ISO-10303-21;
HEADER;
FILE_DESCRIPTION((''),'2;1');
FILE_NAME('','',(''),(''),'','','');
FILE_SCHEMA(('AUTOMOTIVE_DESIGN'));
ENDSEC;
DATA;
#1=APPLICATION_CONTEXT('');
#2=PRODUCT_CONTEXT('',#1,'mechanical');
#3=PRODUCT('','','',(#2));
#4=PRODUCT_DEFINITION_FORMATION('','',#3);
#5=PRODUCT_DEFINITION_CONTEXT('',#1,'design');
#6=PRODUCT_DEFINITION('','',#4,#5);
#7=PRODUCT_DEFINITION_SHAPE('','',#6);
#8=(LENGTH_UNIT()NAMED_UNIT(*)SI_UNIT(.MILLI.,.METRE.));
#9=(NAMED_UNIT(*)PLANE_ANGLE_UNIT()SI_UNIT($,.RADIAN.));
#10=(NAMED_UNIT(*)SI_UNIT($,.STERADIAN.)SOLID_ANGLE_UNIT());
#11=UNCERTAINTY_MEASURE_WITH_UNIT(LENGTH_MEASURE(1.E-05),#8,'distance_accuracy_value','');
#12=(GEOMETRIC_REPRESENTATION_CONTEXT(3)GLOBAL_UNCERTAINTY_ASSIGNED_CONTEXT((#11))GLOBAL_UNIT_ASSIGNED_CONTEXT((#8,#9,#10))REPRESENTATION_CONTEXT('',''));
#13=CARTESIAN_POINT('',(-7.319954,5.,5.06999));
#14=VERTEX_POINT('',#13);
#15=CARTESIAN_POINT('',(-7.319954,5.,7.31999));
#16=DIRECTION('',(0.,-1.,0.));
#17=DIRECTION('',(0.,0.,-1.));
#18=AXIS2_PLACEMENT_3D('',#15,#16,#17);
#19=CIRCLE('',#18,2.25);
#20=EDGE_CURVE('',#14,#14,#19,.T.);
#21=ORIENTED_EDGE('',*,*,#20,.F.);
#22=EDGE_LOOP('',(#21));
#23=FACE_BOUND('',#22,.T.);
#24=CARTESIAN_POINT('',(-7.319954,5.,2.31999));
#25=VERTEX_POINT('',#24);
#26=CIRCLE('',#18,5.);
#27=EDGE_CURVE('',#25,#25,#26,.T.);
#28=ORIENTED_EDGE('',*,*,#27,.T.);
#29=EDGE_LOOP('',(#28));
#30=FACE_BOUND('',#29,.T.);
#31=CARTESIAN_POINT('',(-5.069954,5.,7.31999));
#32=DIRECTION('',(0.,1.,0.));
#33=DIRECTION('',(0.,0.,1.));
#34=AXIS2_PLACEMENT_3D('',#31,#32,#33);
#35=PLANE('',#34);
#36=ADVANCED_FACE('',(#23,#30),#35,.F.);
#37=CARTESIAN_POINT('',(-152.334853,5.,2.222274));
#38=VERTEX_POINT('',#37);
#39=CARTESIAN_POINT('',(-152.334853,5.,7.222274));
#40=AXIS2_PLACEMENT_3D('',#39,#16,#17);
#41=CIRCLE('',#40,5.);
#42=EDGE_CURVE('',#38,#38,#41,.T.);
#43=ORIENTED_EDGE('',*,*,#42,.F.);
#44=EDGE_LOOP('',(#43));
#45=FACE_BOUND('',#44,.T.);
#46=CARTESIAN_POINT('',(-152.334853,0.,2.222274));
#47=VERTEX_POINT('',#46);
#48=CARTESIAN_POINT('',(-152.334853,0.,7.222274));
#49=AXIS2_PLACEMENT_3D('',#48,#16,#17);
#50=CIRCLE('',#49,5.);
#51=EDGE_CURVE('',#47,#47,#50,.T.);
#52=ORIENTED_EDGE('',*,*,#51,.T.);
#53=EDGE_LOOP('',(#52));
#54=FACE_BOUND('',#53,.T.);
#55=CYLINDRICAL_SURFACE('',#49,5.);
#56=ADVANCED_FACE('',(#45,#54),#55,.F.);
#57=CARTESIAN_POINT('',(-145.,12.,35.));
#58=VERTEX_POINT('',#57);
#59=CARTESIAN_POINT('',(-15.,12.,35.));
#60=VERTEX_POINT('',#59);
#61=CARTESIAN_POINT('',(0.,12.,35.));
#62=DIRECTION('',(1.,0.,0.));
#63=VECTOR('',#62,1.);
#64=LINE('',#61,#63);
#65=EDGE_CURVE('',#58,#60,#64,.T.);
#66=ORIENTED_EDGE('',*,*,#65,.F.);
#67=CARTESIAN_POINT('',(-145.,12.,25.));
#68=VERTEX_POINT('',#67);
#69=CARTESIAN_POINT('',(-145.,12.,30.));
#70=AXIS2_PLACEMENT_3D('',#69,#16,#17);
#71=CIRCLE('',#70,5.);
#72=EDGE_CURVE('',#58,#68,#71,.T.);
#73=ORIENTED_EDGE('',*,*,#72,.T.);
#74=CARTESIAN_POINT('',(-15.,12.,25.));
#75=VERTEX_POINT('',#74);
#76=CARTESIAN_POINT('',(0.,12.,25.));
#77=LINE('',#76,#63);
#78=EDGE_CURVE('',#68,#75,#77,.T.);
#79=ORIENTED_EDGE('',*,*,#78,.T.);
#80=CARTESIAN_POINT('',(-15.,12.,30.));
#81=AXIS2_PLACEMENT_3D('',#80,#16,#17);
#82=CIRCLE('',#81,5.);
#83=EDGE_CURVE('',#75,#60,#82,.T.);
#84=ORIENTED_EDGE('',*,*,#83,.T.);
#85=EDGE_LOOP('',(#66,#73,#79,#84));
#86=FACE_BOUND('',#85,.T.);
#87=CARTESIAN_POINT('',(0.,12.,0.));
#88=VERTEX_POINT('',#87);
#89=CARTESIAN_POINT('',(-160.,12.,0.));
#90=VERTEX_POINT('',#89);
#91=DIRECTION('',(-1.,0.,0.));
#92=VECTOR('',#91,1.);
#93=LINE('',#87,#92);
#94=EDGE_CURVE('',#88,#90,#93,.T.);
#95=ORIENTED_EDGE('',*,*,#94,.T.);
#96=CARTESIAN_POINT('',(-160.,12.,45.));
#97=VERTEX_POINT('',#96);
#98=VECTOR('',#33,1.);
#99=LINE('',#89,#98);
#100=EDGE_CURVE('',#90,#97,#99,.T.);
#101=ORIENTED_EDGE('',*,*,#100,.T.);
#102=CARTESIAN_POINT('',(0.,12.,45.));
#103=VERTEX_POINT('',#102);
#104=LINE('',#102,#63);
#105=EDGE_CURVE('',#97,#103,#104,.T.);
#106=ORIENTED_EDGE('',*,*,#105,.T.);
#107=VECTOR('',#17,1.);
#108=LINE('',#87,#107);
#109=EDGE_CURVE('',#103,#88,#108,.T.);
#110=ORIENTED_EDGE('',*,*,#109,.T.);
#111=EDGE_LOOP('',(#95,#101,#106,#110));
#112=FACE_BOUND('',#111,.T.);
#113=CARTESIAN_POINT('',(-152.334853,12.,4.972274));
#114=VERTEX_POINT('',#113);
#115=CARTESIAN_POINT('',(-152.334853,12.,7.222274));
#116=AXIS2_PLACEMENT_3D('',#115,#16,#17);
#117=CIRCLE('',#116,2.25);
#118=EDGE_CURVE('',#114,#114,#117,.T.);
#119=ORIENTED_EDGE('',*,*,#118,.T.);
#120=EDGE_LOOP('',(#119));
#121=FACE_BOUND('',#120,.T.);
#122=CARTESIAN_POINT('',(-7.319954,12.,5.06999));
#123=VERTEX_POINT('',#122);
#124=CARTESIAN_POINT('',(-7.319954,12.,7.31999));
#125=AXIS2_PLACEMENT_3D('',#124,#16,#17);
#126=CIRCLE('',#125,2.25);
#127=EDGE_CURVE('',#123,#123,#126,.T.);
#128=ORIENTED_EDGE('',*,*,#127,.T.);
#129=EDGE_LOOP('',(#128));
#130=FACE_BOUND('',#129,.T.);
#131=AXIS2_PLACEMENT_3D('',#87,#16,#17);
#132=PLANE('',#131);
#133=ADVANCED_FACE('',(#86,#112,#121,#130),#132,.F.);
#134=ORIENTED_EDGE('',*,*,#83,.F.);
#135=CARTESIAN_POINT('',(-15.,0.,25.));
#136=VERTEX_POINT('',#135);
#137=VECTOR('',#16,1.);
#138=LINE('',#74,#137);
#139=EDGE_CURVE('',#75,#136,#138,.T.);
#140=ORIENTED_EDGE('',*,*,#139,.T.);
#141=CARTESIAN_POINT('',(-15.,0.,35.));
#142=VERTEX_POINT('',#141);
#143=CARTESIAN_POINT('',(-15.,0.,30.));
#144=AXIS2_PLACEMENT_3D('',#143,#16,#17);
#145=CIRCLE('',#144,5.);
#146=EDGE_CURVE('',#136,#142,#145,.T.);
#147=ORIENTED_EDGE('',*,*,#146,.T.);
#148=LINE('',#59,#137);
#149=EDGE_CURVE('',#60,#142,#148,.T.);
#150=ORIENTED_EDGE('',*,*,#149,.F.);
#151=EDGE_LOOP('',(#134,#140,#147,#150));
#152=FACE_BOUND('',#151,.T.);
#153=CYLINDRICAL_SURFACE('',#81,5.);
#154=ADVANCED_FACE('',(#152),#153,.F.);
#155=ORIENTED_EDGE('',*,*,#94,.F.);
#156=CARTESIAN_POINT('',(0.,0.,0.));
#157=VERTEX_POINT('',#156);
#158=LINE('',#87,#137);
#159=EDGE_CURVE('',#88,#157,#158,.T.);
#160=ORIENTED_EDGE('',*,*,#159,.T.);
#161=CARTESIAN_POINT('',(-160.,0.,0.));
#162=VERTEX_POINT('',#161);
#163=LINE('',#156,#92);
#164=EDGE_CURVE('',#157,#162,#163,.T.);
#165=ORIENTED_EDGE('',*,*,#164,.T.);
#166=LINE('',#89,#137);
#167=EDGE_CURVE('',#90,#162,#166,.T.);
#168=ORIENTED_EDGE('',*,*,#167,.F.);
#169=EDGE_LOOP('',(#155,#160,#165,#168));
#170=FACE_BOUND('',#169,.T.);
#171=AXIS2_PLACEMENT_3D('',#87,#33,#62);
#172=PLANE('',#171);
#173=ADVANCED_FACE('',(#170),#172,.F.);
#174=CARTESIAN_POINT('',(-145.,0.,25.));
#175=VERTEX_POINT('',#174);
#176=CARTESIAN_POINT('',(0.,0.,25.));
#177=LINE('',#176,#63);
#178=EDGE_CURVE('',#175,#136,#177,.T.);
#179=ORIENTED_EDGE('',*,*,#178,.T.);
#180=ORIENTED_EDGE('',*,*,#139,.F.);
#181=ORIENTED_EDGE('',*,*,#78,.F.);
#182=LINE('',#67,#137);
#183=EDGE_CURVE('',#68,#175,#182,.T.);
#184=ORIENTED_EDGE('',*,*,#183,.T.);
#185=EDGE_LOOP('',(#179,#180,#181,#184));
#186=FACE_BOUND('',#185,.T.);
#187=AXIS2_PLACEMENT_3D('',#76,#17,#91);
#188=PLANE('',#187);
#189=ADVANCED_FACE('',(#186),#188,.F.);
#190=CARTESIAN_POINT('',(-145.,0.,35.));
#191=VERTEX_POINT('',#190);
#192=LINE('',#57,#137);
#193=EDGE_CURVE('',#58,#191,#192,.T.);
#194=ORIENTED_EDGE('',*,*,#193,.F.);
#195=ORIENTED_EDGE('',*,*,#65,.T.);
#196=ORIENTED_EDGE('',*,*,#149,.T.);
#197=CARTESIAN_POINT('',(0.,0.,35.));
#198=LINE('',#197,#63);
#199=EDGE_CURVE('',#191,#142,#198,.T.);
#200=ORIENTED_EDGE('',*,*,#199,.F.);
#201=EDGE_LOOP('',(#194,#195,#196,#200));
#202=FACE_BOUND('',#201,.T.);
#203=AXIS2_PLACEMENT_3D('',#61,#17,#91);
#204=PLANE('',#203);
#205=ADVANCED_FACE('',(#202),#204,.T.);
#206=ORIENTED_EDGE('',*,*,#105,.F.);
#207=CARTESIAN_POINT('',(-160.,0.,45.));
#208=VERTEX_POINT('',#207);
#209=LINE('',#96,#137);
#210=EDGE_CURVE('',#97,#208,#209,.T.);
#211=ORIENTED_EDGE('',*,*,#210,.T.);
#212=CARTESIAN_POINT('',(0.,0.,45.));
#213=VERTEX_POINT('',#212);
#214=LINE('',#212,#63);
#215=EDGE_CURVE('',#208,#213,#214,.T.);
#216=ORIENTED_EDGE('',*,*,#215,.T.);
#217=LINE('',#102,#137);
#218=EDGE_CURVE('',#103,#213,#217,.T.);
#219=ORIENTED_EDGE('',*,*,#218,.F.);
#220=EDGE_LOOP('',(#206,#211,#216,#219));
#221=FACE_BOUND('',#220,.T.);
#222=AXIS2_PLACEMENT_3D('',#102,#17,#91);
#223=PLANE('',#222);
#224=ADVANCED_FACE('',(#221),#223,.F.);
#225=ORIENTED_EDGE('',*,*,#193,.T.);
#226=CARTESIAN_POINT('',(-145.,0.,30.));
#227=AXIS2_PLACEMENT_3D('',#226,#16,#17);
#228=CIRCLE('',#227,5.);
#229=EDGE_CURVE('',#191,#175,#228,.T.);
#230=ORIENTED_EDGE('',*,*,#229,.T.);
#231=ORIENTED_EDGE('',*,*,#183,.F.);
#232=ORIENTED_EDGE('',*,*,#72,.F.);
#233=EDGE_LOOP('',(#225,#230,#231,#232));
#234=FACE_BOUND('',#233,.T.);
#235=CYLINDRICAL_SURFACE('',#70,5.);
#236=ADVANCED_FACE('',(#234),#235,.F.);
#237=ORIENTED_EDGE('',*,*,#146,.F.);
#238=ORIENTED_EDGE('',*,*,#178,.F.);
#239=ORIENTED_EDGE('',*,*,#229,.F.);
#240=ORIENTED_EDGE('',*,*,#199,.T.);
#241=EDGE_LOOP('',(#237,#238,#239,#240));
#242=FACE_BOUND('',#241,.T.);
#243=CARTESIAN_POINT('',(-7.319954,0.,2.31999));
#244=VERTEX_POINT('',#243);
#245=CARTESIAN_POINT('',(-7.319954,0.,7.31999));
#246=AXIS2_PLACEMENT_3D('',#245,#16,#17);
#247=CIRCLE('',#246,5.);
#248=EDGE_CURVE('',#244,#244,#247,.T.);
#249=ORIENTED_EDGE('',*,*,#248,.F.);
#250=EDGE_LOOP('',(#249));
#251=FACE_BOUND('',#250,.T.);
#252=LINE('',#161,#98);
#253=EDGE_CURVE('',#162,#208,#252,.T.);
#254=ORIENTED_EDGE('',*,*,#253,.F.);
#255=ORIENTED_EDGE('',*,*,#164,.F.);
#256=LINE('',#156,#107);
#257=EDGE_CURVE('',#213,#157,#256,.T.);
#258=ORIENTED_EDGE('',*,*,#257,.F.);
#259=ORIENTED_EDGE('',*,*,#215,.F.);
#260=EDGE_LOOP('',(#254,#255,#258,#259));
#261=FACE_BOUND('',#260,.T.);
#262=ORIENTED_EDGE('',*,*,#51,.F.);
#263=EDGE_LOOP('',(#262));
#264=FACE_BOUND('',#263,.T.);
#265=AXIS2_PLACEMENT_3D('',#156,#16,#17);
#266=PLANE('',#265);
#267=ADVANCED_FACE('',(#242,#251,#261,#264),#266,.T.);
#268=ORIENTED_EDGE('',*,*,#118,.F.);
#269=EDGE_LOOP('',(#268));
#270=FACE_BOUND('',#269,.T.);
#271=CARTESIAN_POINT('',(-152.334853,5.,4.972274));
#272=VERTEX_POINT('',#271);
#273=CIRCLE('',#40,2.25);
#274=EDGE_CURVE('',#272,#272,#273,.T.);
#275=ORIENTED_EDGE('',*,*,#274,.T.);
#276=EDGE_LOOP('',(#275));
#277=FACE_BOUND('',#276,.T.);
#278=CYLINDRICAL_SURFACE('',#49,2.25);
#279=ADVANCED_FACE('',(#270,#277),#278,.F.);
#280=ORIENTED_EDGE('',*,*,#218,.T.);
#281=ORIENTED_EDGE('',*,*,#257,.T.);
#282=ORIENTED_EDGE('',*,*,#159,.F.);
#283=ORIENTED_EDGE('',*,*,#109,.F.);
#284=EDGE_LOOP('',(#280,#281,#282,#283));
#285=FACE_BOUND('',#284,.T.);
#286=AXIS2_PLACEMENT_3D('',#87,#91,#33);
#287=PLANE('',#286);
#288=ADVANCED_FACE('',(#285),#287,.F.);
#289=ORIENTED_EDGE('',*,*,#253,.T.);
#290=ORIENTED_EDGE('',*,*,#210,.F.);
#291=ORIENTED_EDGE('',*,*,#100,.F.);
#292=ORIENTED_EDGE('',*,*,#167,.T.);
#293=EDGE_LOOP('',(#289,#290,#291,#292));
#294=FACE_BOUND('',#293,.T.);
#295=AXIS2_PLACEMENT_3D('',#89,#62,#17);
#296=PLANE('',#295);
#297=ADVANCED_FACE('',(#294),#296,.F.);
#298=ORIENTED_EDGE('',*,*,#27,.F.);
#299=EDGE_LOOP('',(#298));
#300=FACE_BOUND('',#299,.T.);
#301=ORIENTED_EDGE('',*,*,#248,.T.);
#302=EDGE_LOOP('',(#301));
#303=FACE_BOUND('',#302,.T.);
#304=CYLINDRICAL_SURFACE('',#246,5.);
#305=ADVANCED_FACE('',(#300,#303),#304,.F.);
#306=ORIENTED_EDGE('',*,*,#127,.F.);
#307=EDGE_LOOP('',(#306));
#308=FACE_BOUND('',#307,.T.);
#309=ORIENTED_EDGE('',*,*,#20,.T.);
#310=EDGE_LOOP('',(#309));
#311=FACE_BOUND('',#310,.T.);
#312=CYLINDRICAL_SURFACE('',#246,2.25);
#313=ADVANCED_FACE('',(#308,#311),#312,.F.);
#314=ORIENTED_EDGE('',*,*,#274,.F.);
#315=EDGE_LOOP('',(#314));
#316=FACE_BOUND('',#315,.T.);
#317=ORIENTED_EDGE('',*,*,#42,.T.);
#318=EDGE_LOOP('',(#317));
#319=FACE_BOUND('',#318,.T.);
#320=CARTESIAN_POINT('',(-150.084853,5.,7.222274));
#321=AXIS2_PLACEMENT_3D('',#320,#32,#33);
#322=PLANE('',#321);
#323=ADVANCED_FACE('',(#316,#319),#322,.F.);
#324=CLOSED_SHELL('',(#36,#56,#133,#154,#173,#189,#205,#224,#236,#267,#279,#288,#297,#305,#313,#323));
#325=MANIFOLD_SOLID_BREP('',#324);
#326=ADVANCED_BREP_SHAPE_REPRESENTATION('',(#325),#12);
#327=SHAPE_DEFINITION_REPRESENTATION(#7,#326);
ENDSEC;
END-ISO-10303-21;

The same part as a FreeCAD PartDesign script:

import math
import FreeCAD as App
import Part
import Sketcher
from FreeCAD import Vector

doc = App.newDocument("Part")
params = doc.addObject("Spreadsheet::Sheet", "Params")
for row, (alias, value) in enumerate([
    ("sketch1_width", "160 mm"),
    ("sketch1_height", "45 mm"),
    ("pad1_length", "12 mm"),
    ("sketch2_diameter", "4.5 mm"),
    ("hole_diameter", "4.5 mm"),
    ("hole_cbore_diameter", "10 mm"),
    ("hole_cbore_depth", "5 mm"),
    ("sketch3_diameter", "4.5 mm"),
    ("hole2_diameter", "4.5 mm"),
    ("hole2_cbore_diameter", "10 mm"),
    ("hole2_cbore_depth", "5 mm"),
    ("sketch4_radius", "5 mm"),
    ("sketch4_width", "130 mm"),
    ("pocket1_length", "12 mm"),
], start=1):
    params.set(f"A{row}", alias)
    params.set(f"B{row}", "=" + value)
    params.setAlias(f"B{row}", alias)

body = doc.addObject("PartDesign::Body", "Body")

# Sketch on XZ plane
sketch1 = body.newObject("Sketcher::SketchObject", "Sketch")
sketch1.AttachmentSupport = (doc.getObject("XZ_Plane"), [""])
sketch1.MapMode = "FlatFace"
sketch1.addGeometry(Part.LineSegment(Vector(-160, 0, 0), Vector(-160, 45, 0)), False)
sketch1.addGeometry(Part.LineSegment(Vector(-160, 45, 0), Vector(0, 45, 0)), False)
sketch1.addGeometry(Part.LineSegment(Vector(0, 45, 0), Vector(0, 0, 0)), False)
sketch1.addGeometry(Part.LineSegment(Vector(0, 0, 0), Vector(-160, 0, 0)), False)
sketch1.addConstraint(Sketcher.Constraint("Coincident", 0, 2, 1, 1))
sketch1.addConstraint(Sketcher.Constraint("Coincident", 1, 2, 2, 1))
sketch1.addConstraint(Sketcher.Constraint("Coincident", 2, 2, 3, 1))
sketch1.addConstraint(Sketcher.Constraint("Coincident", 3, 2, 0, 1))
sketch1.addConstraint(Sketcher.Constraint("Vertical", 0))
sketch1.addConstraint(Sketcher.Constraint("Horizontal", 1))
sketch1.addConstraint(Sketcher.Constraint("Vertical", 2))
sketch1.addConstraint(Sketcher.Constraint("Horizontal", 3))
sketch1.addConstraint(Sketcher.Constraint("Coincident", 2, 2, -1, 1))
sketch1.addConstraint(Sketcher.Constraint("DistanceX", 1, 1, 1, 2, 160.0))
sketch1.addConstraint(Sketcher.Constraint("DistanceY", 0, 1, 0, 2, 45.0))
sketch1.setExpression("Constraints[9]", "Params.sketch1_width")
sketch1.setExpression("Constraints[10]", "Params.sketch1_height")
pad1 = body.newObject("PartDesign::Pad", "Pad")
pad1.Profile = sketch1
pad1.setExpression("Length", "Params.pad1_length")
pad1.Reversed = True

# Sketch on XZ plane
sketch2 = body.newObject("Sketcher::SketchObject", "Sketch001")
sketch2.AttachmentSupport = (doc.getObject("XZ_Plane"), [""])
sketch2.MapMode = "FlatFace"
sketch2.addGeometry(Part.Circle(Vector(-152.3, 7.2, 0), Vector(0, 0, 1), 2.2), False)
sketch2.addConstraint(Sketcher.Constraint("Diameter", 0, 4.5))
sketch2.addConstraint(Sketcher.Constraint("DistanceX", 0, 3, -1, 1, 152.334853))
sketch2.addConstraint(Sketcher.Constraint("DistanceY", -1, 1, 0, 3, 7.222274))
sketch2.setExpression("Constraints[0]", "Params.sketch2_diameter")
doc.recompute()
hole = body.newObject("PartDesign::Hole", "Hole")
hole.Profile = sketch2
hole.ThreadType = "None"
hole.setExpression("Diameter", "Params.hole_diameter")
hole.DepthType = "ThroughAll"
hole.HoleCutType = "Counterbore"
hole.setExpression("HoleCutDiameter", "Params.hole_cbore_diameter")
hole.setExpression("HoleCutDepth", "Params.hole_cbore_depth")

# Sketch on XZ plane
sketch3 = body.newObject("Sketcher::SketchObject", "Sketch002")
sketch3.AttachmentSupport = (doc.getObject("XZ_Plane"), [""])
sketch3.MapMode = "FlatFace"
sketch3.addGeometry(Part.Circle(Vector(-7.3, 7.3, 0), Vector(0, 0, 1), 2.2), False)
sketch3.addConstraint(Sketcher.Constraint("Diameter", 0, 4.5))
sketch3.addConstraint(Sketcher.Constraint("DistanceY", -1, 1, 0, 3, 7.31999))
sketch3.addConstraint(Sketcher.Constraint("DistanceX", 0, 3, -1, 1, 7.319954))
sketch3.setExpression("Constraints[0]", "Params.sketch3_diameter")
doc.recompute()
hole2 = body.newObject("PartDesign::Hole", "Hole001")
hole2.Profile = sketch3
hole2.ThreadType = "None"
hole2.setExpression("Diameter", "Params.hole2_diameter")
hole2.DepthType = "ThroughAll"
hole2.HoleCutType = "Counterbore"
hole2.setExpression("HoleCutDiameter", "Params.hole2_cbore_diameter")
hole2.setExpression("HoleCutDepth", "Params.hole2_cbore_depth")

# Sketch on XZ plane
sketch4 = body.newObject("Sketcher::SketchObject", "Sketch003")
sketch4.AttachmentSupport = (doc.getObject("XZ_Plane"), [""])
sketch4.MapMode = "FlatFace"
sketch4.addGeometry(Part.ArcOfCircle(Part.Circle(Vector(-145, 30, 0), Vector(0, 0, 1), 5), math.radians(90), math.radians(270)), False)
sketch4.addGeometry(Part.LineSegment(Vector(-145, 25, 0), Vector(-15, 25, 0)), False)
sketch4.addGeometry(Part.ArcOfCircle(Part.Circle(Vector(-15, 30, 0), Vector(0, 0, 1), 5), math.radians(-90), math.radians(90)), False)
sketch4.addGeometry(Part.LineSegment(Vector(-15, 35, 0), Vector(-145, 35, 0)), False)
sketch4.addConstraint(Sketcher.Constraint("Tangent", 0, 2, 1, 1))
sketch4.addConstraint(Sketcher.Constraint("Tangent", 1, 2, 2, 1))
sketch4.addConstraint(Sketcher.Constraint("Tangent", 2, 2, 3, 1))
sketch4.addConstraint(Sketcher.Constraint("Tangent", 3, 2, 0, 1))
sketch4.addConstraint(Sketcher.Constraint("Horizontal", 1))
sketch4.addConstraint(Sketcher.Constraint("Horizontal", 3))
sketch4.addConstraint(Sketcher.Constraint("Radius", 0, 5.0))
sketch4.addConstraint(Sketcher.Constraint("DistanceX", 1, 1, 1, 2, 130.0))
sketch4.addConstraint(Sketcher.Constraint("DistanceX", 0, 3, -1, 1, 145.0))
sketch4.addConstraint(Sketcher.Constraint("DistanceY", -1, 1, 0, 3, 30.0))
sketch4.setExpression("Constraints[6]", "Params.sketch4_radius")
sketch4.setExpression("Constraints[7]", "Params.sketch4_width")
pocket1 = body.newObject("PartDesign::Pocket", "Pocket")
pocket1.Profile = sketch4
pocket1.setExpression("Length", "Params.pocket1_length")

doc.recompute()
